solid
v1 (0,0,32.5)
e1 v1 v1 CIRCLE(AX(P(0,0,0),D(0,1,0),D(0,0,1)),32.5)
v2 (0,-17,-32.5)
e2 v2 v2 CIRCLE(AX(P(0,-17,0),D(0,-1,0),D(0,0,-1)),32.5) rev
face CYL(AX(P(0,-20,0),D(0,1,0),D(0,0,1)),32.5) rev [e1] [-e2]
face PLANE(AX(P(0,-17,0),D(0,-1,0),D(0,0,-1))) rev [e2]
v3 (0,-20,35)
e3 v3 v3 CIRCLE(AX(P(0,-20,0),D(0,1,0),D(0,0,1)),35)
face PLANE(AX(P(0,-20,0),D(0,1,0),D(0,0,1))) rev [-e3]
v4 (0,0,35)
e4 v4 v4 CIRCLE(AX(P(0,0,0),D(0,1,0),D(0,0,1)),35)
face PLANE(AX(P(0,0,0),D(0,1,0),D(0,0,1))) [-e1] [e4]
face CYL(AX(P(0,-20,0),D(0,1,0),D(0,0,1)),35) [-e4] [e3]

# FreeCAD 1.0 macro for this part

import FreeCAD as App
import Part
import Sketcher

doc = App.newDocument("Part")
body = doc.addObject("PartDesign::Body", "Body")

# Sketch on XZ plane
sketch1 = body.newObject("Sketcher::SketchObject", "Sketch")
sketch1.AttachmentSupport = (doc.getObject("XZ_Plane"), [""])
sketch1.MapMode = "FlatFace"
sketch1.addGeometry([
    Part.Circle(App.Vector(0, 0, 0), App.Vector(0, 0, 1), 35),
    Part.Circle(App.Vector(0, 0, 0), App.Vector(0, 0, 1), 32),
], False)
sketch1.addConstraint([
    Sketcher.Constraint("Coincident", 0, 3, -1, 1),
    Sketcher.Constraint("Coincident", 1, 3, -1, 1),
    Sketcher.Constraint("Diameter", 0, 70.0),
    Sketcher.Constraint("Diameter", 1, 65.0),
])
pad1 = body.newObject("PartDesign::Pad", "Pad")
pad1.Profile = sketch1
pad1.Length = 20

# Sketch on XZ plane
sketch2 = body.newObject("Sketcher::SketchObject", "Sketch001")
sketch2.AttachmentSupport = (doc.getObject("XZ_Plane"), [""])
sketch2.MapMode = "FlatFace"
sketch2.AttachmentOffset = App.Placement(App.Vector(0, 0, 17), App.Rotation())
sketch2.addGeometry(Part.Circle(App.Vector(0, 0, 0), App.Vector(0, 0, 1), 32), False)
sketch2.addConstraint([
    Sketcher.Constraint("Coincident", 0, 3, -1, 1),
    Sketcher.Constraint("Diameter", 0, 65.0),
])
pad2 = body.newObject("PartDesign::Pad", "Pad001")
pad2.Profile = sketch2
pad2.Length = 3

doc.recompute()
